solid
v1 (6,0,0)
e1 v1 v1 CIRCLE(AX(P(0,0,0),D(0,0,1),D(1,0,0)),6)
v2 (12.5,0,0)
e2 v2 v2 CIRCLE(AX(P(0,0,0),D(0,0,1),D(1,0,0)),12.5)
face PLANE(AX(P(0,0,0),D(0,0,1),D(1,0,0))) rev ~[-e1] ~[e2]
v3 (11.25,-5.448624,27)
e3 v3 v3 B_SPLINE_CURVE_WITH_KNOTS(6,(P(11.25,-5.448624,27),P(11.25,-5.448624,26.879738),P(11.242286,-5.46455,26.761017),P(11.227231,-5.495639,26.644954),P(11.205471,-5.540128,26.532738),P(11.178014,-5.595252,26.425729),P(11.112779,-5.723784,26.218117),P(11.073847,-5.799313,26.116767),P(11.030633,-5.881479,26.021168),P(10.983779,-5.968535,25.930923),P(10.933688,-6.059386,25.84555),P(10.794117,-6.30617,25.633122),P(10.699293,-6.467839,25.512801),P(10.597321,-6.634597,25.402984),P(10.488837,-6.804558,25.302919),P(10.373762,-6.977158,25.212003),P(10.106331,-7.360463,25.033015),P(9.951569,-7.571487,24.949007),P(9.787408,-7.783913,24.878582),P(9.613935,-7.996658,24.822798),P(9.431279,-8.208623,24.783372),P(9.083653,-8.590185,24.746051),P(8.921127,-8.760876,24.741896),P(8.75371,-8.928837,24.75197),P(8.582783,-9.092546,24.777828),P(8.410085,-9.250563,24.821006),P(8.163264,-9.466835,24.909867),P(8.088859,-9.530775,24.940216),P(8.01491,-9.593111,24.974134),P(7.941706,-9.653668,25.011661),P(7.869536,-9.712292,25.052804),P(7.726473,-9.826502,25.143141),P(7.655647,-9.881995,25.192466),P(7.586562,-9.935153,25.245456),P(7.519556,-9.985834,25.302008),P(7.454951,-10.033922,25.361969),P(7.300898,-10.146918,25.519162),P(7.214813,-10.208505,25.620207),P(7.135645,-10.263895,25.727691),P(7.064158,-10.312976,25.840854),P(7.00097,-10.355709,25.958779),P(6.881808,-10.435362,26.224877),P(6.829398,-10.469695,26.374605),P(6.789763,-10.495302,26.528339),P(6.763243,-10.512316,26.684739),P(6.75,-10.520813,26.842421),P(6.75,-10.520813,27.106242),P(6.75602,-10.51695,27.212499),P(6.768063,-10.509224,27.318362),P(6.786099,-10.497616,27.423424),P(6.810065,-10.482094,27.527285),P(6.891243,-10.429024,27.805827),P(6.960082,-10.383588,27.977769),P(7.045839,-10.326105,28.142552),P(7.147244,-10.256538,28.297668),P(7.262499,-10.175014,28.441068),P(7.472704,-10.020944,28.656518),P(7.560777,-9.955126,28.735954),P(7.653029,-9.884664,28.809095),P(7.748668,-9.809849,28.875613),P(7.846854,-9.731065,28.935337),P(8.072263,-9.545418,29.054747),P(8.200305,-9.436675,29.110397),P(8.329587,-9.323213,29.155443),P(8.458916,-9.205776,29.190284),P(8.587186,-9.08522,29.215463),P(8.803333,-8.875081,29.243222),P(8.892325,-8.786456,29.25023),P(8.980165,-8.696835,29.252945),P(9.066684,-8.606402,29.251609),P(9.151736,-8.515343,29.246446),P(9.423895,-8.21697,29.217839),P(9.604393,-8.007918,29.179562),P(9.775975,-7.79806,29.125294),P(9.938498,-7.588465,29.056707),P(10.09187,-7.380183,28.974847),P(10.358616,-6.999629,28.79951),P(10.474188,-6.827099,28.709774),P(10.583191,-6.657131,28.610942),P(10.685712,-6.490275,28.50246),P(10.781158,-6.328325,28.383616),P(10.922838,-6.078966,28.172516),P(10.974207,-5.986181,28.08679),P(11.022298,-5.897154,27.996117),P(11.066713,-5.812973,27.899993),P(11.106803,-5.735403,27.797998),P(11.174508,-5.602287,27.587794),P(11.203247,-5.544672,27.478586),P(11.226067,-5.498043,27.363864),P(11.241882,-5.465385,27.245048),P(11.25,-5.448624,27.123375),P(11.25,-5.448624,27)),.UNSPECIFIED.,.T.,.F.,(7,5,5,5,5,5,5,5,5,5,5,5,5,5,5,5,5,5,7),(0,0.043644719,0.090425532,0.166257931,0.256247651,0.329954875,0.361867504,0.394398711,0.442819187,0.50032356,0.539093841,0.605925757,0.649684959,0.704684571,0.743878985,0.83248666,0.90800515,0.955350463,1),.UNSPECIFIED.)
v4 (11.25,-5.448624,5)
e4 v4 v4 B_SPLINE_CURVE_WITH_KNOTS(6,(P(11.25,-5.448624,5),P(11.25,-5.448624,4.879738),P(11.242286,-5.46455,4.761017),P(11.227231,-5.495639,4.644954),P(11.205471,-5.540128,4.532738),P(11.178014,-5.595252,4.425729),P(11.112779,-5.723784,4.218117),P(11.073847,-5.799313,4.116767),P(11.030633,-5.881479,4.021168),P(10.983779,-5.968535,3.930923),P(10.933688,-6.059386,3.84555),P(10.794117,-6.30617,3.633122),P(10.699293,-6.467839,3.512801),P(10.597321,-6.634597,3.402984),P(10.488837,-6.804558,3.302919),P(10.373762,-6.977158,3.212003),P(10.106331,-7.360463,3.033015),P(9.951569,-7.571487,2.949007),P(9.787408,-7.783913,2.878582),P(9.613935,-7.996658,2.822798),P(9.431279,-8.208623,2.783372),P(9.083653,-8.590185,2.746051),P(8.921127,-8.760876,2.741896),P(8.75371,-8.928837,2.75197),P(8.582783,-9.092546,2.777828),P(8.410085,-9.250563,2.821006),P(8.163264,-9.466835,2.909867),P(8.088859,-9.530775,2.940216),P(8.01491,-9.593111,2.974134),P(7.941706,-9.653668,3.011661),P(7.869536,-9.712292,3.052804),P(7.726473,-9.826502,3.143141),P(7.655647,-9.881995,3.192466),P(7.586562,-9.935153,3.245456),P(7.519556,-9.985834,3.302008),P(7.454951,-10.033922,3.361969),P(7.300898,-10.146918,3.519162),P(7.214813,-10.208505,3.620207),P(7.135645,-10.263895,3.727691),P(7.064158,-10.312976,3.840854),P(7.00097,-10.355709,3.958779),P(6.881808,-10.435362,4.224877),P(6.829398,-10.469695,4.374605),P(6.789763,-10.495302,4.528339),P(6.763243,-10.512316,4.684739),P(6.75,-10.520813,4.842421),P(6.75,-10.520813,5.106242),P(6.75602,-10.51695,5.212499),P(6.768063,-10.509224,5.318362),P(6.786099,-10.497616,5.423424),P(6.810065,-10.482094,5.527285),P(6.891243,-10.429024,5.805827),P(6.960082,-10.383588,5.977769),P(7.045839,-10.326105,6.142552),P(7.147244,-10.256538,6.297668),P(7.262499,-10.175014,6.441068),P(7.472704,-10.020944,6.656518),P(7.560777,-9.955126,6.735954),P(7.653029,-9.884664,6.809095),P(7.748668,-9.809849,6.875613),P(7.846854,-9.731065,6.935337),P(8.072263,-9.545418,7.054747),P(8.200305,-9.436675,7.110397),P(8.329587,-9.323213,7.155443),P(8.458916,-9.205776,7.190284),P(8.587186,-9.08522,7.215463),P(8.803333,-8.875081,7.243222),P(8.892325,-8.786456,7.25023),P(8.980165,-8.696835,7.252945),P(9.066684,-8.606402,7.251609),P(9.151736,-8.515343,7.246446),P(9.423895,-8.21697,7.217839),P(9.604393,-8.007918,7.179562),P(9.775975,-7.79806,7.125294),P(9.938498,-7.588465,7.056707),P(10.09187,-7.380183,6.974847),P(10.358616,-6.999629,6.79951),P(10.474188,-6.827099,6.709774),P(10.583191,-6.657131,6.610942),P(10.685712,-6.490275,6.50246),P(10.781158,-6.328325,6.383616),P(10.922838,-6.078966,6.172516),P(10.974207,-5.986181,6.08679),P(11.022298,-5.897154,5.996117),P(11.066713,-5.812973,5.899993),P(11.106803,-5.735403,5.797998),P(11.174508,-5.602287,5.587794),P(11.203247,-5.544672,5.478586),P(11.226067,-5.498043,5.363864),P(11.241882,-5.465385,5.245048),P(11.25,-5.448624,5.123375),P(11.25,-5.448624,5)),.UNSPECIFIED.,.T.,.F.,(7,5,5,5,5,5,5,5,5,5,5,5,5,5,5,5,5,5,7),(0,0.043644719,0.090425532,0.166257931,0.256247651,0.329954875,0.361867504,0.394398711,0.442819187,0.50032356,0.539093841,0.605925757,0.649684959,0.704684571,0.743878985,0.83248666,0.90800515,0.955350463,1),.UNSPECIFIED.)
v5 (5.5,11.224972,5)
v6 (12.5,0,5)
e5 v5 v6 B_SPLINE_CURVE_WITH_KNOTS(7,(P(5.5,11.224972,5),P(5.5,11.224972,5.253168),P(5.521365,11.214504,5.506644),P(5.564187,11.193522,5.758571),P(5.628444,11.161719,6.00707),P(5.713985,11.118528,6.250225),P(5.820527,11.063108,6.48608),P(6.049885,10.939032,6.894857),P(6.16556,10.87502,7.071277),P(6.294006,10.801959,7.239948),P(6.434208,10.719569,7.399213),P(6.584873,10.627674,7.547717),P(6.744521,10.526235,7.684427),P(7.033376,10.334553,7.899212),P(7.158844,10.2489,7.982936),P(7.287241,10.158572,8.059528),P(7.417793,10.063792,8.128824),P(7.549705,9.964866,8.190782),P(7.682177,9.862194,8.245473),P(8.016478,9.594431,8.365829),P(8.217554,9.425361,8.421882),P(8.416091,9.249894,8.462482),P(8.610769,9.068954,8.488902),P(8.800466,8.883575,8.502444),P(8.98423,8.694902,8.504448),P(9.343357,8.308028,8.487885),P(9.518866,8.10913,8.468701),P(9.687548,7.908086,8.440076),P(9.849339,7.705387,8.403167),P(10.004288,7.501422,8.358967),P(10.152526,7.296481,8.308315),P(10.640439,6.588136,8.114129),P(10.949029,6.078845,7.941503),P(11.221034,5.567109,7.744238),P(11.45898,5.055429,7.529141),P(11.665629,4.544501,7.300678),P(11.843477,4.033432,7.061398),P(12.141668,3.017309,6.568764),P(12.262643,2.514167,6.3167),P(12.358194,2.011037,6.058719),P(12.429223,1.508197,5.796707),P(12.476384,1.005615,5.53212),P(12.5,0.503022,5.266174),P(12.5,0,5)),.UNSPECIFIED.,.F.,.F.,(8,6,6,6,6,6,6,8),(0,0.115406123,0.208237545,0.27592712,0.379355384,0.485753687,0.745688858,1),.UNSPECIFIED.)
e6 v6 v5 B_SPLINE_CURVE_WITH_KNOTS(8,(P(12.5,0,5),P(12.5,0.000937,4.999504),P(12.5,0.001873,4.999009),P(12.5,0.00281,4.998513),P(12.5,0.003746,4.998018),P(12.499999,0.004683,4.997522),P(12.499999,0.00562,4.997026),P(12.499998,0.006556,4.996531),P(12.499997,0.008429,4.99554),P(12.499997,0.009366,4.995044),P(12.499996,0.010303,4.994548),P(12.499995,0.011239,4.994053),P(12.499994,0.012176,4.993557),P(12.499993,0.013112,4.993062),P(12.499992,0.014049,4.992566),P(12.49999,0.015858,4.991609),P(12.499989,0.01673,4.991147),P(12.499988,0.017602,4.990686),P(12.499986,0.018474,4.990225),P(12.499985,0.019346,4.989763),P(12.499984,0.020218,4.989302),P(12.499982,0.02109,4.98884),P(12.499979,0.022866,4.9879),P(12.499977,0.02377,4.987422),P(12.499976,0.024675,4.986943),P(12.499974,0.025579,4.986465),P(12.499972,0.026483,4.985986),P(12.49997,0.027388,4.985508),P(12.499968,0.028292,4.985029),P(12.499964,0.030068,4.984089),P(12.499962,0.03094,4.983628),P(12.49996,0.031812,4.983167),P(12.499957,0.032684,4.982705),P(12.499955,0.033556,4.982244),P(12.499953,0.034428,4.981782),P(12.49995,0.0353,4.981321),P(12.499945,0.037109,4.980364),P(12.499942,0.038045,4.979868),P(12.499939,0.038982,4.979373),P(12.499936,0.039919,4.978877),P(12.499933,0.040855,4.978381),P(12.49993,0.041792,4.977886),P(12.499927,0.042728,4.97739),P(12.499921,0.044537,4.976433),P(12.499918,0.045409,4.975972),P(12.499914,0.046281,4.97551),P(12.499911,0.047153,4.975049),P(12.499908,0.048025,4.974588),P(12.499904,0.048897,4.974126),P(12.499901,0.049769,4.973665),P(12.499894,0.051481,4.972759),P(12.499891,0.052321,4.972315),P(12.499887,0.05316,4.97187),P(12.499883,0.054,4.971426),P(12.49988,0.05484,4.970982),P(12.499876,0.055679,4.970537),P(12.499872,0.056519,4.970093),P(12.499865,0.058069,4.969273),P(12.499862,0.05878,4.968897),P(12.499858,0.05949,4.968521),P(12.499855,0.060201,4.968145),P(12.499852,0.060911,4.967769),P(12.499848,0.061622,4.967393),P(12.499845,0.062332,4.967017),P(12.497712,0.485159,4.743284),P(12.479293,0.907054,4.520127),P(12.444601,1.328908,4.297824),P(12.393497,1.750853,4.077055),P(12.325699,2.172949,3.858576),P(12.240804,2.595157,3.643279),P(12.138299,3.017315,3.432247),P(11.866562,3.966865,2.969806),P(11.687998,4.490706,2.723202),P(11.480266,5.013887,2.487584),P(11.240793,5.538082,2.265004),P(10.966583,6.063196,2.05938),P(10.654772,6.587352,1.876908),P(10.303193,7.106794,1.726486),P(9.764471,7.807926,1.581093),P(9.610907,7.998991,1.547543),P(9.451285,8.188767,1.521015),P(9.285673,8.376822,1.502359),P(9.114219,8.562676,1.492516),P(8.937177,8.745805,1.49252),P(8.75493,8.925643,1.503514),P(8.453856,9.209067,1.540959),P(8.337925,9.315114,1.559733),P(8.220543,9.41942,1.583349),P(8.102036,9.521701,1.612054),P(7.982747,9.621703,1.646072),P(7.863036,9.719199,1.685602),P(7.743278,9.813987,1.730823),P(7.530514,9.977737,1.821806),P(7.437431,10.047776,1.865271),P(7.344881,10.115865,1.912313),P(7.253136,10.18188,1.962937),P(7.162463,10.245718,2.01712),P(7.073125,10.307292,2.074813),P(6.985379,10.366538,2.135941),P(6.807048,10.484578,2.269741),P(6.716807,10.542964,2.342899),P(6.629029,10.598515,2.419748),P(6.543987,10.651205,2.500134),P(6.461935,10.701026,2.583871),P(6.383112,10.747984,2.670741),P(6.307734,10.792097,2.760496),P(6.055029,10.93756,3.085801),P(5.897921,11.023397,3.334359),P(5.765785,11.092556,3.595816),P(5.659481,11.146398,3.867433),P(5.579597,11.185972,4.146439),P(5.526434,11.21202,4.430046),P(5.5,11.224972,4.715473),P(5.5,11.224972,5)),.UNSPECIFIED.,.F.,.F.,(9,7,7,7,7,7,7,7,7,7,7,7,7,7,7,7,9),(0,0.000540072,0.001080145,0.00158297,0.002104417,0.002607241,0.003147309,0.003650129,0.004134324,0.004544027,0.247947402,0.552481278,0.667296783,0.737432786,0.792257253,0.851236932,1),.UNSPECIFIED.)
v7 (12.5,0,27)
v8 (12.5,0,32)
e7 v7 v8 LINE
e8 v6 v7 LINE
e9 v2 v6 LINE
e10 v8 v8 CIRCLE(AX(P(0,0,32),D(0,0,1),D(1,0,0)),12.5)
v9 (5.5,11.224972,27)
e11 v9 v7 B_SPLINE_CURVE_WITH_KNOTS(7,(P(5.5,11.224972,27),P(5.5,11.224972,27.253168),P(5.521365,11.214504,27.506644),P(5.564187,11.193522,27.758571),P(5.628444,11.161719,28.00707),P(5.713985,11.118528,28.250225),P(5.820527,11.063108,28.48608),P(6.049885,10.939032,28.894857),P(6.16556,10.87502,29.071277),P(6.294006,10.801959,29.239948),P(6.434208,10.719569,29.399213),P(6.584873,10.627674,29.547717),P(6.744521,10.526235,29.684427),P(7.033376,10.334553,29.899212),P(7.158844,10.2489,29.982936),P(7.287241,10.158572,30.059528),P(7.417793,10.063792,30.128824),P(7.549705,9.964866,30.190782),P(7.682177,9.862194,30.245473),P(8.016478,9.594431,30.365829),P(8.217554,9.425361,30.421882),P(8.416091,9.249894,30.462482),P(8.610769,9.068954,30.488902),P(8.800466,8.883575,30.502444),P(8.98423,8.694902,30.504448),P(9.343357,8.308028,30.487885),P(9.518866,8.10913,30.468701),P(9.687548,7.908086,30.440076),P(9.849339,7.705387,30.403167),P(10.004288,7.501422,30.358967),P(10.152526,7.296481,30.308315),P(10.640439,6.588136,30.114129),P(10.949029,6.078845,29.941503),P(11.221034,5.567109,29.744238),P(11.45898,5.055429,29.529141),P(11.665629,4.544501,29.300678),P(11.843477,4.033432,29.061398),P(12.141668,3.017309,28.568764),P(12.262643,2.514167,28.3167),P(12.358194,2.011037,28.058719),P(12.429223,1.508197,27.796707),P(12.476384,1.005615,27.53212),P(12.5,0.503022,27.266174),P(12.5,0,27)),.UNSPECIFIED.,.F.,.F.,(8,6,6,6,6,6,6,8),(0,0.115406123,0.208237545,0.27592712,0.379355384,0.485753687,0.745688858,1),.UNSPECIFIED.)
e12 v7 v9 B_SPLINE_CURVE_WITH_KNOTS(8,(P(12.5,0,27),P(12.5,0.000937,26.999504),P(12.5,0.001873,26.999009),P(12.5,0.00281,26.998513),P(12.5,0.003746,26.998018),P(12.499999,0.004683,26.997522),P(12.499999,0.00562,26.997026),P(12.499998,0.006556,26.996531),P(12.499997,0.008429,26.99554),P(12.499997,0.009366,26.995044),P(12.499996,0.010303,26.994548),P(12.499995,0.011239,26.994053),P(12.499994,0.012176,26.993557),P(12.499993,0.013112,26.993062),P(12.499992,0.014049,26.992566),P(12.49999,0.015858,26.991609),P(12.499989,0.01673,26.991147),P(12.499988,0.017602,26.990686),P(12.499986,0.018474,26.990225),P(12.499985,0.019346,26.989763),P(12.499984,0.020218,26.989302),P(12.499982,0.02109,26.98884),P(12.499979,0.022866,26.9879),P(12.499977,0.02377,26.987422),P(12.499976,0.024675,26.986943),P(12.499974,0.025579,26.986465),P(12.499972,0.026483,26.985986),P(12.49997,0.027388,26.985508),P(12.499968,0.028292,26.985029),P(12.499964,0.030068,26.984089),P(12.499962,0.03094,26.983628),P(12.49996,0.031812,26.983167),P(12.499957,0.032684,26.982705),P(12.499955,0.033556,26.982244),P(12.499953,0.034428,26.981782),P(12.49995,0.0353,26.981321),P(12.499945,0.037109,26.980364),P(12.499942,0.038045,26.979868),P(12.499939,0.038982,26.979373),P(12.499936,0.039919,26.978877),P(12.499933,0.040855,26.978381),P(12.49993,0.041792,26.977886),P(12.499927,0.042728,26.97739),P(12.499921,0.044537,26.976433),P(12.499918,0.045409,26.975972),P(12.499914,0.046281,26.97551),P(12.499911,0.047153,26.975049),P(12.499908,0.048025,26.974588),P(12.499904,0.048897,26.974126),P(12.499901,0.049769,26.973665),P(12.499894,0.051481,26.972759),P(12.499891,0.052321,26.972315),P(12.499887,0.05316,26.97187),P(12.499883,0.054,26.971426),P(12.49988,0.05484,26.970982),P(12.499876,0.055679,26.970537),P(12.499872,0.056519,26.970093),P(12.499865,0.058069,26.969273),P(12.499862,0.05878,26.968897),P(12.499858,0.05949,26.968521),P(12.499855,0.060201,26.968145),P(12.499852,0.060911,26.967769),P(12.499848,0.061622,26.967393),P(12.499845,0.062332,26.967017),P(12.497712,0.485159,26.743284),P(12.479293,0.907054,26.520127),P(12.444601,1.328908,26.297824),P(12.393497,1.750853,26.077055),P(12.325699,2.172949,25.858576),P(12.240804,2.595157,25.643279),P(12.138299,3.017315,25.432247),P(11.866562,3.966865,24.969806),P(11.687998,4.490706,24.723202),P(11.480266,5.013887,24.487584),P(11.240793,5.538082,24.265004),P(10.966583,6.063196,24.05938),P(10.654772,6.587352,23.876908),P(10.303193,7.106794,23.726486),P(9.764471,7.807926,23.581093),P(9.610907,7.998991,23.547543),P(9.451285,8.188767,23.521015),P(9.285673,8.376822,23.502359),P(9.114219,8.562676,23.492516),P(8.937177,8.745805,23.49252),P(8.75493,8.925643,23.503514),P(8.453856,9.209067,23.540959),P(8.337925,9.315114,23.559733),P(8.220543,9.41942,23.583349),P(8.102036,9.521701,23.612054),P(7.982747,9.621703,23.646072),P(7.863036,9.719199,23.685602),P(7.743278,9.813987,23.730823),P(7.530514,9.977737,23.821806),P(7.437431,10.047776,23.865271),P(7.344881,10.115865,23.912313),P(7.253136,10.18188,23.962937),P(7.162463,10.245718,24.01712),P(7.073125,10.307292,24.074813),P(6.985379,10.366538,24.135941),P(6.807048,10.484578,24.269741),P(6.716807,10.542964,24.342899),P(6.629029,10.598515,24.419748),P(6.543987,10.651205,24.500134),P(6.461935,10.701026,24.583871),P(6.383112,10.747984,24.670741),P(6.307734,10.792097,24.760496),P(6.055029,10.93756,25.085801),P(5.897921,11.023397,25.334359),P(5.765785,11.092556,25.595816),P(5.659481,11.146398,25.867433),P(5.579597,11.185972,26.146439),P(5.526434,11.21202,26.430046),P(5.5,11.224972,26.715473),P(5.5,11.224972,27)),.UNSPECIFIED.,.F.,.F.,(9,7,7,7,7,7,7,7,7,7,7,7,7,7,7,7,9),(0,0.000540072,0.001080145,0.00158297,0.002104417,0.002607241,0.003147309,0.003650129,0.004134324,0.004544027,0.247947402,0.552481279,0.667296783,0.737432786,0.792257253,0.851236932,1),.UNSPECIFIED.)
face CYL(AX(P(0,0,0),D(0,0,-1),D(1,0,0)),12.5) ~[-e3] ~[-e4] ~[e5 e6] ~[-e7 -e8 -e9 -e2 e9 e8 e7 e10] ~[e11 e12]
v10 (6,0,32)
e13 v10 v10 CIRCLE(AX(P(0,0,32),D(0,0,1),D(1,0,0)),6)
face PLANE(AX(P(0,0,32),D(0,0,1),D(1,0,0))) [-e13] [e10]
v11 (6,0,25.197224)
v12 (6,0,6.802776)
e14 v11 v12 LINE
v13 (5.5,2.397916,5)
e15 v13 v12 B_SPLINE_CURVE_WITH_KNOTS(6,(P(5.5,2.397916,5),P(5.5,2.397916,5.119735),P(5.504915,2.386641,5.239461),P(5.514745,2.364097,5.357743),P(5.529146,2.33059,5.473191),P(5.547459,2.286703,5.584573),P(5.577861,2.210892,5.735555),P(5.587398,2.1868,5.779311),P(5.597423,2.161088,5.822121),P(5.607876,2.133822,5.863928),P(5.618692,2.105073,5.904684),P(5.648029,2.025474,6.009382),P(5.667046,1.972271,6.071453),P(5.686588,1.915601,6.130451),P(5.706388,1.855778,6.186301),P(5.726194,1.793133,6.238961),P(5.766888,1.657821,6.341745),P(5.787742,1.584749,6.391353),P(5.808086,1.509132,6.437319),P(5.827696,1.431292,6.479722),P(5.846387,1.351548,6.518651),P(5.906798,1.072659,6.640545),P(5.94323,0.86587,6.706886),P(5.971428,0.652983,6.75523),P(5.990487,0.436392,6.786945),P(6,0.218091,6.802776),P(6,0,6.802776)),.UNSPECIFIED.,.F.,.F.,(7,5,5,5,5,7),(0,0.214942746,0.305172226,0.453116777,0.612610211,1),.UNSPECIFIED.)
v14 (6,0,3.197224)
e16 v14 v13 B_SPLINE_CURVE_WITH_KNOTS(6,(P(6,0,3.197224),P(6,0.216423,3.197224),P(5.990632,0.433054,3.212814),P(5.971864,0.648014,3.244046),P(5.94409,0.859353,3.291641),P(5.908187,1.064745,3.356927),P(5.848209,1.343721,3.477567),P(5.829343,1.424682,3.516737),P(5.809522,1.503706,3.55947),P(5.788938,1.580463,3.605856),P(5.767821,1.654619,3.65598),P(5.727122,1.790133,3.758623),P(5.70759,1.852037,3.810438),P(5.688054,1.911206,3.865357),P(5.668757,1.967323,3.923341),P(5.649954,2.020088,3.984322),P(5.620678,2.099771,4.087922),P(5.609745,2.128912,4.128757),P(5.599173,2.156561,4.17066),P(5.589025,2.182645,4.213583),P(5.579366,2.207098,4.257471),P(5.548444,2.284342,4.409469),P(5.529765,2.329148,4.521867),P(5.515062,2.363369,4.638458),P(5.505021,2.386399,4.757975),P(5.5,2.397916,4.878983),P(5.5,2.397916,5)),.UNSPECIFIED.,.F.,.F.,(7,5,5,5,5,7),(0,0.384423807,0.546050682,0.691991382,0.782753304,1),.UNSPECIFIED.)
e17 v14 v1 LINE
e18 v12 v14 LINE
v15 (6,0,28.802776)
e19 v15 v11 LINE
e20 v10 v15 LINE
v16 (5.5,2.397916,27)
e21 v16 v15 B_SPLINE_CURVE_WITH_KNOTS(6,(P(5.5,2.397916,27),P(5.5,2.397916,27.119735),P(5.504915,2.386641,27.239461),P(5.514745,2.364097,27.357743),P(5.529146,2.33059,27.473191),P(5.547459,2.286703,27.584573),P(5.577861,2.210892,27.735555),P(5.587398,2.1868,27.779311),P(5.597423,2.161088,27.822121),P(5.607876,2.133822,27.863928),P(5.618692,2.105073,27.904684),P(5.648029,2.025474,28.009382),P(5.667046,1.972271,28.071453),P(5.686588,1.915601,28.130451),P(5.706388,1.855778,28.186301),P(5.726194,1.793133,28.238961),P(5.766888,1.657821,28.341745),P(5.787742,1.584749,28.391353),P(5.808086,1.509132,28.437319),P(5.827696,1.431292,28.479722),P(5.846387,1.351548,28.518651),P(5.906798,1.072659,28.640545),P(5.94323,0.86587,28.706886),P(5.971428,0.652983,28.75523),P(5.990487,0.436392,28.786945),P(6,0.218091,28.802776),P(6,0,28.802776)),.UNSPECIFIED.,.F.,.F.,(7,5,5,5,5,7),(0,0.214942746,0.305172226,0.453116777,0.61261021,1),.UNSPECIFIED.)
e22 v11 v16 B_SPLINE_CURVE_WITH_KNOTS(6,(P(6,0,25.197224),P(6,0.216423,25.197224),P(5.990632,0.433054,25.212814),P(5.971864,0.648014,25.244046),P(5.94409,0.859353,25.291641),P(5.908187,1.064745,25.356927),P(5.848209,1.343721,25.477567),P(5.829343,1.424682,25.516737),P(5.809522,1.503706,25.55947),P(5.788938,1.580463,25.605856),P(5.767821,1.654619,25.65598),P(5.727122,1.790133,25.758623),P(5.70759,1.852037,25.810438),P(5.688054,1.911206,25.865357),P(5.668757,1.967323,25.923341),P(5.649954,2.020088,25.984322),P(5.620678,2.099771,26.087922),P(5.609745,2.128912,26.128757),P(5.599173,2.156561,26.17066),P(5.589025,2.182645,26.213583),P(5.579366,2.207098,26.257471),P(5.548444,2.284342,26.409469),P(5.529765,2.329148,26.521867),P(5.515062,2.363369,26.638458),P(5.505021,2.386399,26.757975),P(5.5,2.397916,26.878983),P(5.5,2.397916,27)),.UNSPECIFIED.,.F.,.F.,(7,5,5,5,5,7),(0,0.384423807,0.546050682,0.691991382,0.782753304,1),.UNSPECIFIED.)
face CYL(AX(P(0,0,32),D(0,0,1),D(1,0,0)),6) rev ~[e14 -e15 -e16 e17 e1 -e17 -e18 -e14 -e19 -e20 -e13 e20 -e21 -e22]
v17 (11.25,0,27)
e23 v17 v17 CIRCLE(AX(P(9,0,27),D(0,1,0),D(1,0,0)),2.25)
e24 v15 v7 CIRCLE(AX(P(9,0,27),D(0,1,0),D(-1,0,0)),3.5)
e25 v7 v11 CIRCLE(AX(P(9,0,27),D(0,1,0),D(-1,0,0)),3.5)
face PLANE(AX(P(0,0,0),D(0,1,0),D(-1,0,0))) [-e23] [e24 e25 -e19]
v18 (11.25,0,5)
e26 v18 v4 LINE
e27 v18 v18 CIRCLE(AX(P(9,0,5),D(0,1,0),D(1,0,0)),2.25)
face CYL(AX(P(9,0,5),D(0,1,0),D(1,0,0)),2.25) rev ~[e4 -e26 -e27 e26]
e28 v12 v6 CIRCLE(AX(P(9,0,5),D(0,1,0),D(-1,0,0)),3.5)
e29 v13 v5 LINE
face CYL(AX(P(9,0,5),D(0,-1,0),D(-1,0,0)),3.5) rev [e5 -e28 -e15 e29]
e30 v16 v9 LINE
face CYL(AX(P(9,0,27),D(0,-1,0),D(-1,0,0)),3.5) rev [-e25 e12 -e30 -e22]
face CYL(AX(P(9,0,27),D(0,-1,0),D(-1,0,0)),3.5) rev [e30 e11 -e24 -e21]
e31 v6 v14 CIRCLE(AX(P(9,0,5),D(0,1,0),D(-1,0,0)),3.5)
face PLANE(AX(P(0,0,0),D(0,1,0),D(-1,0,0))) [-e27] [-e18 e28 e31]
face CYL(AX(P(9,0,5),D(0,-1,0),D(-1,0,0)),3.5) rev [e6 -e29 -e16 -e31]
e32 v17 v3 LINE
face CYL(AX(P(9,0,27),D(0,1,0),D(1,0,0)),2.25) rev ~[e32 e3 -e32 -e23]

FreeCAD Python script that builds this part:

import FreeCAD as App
import Part
import Sketcher

V = App.Vector

doc = App.newDocument("Part")
body = doc.addObject("PartDesign::Body", "Body")

sketch1 = body.newObject("Sketcher::SketchObject", "Sketch")
sketch1.AttachmentSupport = (doc.getObject("XY_Plane"), [""])
sketch1.MapMode = "FlatFace"
sketch1.addGeometry(Part.Circle(V(0, 0, 0), V(0, 0, 1), 12.5), False)
sketch1.addConstraint([
    Sketcher.Constraint("Coincident", 0, 3, -1, 1),
    Sketcher.Constraint("Diameter", 0, 25.0),
])
pad1 = body.newObject("PartDesign::Pad", "Pad")
pad1.Profile = sketch1
pad1.Length = 32

sketch2 = body.newObject("Sketcher::SketchObject", "Sketch001")
sketch2.AttachmentSupport = (doc.getObject("XY_Plane"), [""])
sketch2.MapMode = "FlatFace"
sketch2.AttachmentOffset = App.Placement(V(0, 0, 32), App.Rotation())
sketch2.addGeometry(Part.Circle(V(0, 0, 0), V(0, 0, 1), 6), False)
sketch2.addConstraint([
    Sketcher.Constraint("Coincident", 0, 3, -1, 1),
    Sketcher.Constraint("Diameter", 0, 12.0),
])
pocket1 = body.newObject("PartDesign::Pocket", "Pocket")
pocket1.Profile = sketch2
pocket1.Length = 32

sketch3 = body.newObject("Sketcher::SketchObject", "Sketch002")
sketch3.AttachmentSupport = (doc.getObject("XZ_Plane"), [""])
sketch3.MapMode = "FlatFace"
sketch3.addGeometry([
    Part.Circle(V(9, 5, 0), V(0, 0, 1), 3.5),
    Part.Circle(V(9, 27, 0), V(0, 0, 1), 3.5),
], False)
sketch3.addConstraint([
    Sketcher.Constraint("Equal", 0, 1),
    Sketcher.Constraint("Vertical", 0, 3, 1, 3),
    Sketcher.Constraint("Diameter", 0, 7.0),
    Sketcher.Constraint("DistanceX", -1, 1, 0, 3, 9.0),
    Sketcher.Constraint("DistanceY", -1, 1, 0, 3, 5.0),
    Sketcher.Constraint("DistanceY", -1, 1, 1, 3, 27.0),
])
pocket2 = body.newObject("PartDesign::Pocket", "Pocket001")
pocket2.Profile = sketch3
pocket2.Length = 32

sketch4 = body.newObject("Sketcher::SketchObject", "Sketch003")
sketch4.AttachmentSupport = (doc.getObject("XZ_Plane"), [""])
sketch4.MapMode = "FlatFace"
sketch4.addGeometry([
    Part.Circle(V(9, 27, 0), V(0, 0, 1), 2.25),
    Part.Circle(V(9, 5, 0), V(0, 0, 1), 2.25),
], False)
sketch4.addConstraint([
    Sketcher.Constraint("Equal", 0, 1),
    Sketcher.Constraint("Vertical", 0, 3, 1, 3),
    Sketcher.Constraint("Diameter", 0, 4.5),
    Sketcher.Constraint("DistanceX", -1, 1, 0, 3, 9.0),
    Sketcher.Constraint("DistanceY", -1, 1, 0, 3, 27.0),
    Sketcher.Constraint("DistanceY", -1, 1, 1, 3, 5.0),
])
pocket3 = body.newObject("PartDesign::Pocket", "Pocket002")
pocket3.Profile = sketch4
pocket3.Length = 32
pocket3.Reversed = True

doc.recompute()
